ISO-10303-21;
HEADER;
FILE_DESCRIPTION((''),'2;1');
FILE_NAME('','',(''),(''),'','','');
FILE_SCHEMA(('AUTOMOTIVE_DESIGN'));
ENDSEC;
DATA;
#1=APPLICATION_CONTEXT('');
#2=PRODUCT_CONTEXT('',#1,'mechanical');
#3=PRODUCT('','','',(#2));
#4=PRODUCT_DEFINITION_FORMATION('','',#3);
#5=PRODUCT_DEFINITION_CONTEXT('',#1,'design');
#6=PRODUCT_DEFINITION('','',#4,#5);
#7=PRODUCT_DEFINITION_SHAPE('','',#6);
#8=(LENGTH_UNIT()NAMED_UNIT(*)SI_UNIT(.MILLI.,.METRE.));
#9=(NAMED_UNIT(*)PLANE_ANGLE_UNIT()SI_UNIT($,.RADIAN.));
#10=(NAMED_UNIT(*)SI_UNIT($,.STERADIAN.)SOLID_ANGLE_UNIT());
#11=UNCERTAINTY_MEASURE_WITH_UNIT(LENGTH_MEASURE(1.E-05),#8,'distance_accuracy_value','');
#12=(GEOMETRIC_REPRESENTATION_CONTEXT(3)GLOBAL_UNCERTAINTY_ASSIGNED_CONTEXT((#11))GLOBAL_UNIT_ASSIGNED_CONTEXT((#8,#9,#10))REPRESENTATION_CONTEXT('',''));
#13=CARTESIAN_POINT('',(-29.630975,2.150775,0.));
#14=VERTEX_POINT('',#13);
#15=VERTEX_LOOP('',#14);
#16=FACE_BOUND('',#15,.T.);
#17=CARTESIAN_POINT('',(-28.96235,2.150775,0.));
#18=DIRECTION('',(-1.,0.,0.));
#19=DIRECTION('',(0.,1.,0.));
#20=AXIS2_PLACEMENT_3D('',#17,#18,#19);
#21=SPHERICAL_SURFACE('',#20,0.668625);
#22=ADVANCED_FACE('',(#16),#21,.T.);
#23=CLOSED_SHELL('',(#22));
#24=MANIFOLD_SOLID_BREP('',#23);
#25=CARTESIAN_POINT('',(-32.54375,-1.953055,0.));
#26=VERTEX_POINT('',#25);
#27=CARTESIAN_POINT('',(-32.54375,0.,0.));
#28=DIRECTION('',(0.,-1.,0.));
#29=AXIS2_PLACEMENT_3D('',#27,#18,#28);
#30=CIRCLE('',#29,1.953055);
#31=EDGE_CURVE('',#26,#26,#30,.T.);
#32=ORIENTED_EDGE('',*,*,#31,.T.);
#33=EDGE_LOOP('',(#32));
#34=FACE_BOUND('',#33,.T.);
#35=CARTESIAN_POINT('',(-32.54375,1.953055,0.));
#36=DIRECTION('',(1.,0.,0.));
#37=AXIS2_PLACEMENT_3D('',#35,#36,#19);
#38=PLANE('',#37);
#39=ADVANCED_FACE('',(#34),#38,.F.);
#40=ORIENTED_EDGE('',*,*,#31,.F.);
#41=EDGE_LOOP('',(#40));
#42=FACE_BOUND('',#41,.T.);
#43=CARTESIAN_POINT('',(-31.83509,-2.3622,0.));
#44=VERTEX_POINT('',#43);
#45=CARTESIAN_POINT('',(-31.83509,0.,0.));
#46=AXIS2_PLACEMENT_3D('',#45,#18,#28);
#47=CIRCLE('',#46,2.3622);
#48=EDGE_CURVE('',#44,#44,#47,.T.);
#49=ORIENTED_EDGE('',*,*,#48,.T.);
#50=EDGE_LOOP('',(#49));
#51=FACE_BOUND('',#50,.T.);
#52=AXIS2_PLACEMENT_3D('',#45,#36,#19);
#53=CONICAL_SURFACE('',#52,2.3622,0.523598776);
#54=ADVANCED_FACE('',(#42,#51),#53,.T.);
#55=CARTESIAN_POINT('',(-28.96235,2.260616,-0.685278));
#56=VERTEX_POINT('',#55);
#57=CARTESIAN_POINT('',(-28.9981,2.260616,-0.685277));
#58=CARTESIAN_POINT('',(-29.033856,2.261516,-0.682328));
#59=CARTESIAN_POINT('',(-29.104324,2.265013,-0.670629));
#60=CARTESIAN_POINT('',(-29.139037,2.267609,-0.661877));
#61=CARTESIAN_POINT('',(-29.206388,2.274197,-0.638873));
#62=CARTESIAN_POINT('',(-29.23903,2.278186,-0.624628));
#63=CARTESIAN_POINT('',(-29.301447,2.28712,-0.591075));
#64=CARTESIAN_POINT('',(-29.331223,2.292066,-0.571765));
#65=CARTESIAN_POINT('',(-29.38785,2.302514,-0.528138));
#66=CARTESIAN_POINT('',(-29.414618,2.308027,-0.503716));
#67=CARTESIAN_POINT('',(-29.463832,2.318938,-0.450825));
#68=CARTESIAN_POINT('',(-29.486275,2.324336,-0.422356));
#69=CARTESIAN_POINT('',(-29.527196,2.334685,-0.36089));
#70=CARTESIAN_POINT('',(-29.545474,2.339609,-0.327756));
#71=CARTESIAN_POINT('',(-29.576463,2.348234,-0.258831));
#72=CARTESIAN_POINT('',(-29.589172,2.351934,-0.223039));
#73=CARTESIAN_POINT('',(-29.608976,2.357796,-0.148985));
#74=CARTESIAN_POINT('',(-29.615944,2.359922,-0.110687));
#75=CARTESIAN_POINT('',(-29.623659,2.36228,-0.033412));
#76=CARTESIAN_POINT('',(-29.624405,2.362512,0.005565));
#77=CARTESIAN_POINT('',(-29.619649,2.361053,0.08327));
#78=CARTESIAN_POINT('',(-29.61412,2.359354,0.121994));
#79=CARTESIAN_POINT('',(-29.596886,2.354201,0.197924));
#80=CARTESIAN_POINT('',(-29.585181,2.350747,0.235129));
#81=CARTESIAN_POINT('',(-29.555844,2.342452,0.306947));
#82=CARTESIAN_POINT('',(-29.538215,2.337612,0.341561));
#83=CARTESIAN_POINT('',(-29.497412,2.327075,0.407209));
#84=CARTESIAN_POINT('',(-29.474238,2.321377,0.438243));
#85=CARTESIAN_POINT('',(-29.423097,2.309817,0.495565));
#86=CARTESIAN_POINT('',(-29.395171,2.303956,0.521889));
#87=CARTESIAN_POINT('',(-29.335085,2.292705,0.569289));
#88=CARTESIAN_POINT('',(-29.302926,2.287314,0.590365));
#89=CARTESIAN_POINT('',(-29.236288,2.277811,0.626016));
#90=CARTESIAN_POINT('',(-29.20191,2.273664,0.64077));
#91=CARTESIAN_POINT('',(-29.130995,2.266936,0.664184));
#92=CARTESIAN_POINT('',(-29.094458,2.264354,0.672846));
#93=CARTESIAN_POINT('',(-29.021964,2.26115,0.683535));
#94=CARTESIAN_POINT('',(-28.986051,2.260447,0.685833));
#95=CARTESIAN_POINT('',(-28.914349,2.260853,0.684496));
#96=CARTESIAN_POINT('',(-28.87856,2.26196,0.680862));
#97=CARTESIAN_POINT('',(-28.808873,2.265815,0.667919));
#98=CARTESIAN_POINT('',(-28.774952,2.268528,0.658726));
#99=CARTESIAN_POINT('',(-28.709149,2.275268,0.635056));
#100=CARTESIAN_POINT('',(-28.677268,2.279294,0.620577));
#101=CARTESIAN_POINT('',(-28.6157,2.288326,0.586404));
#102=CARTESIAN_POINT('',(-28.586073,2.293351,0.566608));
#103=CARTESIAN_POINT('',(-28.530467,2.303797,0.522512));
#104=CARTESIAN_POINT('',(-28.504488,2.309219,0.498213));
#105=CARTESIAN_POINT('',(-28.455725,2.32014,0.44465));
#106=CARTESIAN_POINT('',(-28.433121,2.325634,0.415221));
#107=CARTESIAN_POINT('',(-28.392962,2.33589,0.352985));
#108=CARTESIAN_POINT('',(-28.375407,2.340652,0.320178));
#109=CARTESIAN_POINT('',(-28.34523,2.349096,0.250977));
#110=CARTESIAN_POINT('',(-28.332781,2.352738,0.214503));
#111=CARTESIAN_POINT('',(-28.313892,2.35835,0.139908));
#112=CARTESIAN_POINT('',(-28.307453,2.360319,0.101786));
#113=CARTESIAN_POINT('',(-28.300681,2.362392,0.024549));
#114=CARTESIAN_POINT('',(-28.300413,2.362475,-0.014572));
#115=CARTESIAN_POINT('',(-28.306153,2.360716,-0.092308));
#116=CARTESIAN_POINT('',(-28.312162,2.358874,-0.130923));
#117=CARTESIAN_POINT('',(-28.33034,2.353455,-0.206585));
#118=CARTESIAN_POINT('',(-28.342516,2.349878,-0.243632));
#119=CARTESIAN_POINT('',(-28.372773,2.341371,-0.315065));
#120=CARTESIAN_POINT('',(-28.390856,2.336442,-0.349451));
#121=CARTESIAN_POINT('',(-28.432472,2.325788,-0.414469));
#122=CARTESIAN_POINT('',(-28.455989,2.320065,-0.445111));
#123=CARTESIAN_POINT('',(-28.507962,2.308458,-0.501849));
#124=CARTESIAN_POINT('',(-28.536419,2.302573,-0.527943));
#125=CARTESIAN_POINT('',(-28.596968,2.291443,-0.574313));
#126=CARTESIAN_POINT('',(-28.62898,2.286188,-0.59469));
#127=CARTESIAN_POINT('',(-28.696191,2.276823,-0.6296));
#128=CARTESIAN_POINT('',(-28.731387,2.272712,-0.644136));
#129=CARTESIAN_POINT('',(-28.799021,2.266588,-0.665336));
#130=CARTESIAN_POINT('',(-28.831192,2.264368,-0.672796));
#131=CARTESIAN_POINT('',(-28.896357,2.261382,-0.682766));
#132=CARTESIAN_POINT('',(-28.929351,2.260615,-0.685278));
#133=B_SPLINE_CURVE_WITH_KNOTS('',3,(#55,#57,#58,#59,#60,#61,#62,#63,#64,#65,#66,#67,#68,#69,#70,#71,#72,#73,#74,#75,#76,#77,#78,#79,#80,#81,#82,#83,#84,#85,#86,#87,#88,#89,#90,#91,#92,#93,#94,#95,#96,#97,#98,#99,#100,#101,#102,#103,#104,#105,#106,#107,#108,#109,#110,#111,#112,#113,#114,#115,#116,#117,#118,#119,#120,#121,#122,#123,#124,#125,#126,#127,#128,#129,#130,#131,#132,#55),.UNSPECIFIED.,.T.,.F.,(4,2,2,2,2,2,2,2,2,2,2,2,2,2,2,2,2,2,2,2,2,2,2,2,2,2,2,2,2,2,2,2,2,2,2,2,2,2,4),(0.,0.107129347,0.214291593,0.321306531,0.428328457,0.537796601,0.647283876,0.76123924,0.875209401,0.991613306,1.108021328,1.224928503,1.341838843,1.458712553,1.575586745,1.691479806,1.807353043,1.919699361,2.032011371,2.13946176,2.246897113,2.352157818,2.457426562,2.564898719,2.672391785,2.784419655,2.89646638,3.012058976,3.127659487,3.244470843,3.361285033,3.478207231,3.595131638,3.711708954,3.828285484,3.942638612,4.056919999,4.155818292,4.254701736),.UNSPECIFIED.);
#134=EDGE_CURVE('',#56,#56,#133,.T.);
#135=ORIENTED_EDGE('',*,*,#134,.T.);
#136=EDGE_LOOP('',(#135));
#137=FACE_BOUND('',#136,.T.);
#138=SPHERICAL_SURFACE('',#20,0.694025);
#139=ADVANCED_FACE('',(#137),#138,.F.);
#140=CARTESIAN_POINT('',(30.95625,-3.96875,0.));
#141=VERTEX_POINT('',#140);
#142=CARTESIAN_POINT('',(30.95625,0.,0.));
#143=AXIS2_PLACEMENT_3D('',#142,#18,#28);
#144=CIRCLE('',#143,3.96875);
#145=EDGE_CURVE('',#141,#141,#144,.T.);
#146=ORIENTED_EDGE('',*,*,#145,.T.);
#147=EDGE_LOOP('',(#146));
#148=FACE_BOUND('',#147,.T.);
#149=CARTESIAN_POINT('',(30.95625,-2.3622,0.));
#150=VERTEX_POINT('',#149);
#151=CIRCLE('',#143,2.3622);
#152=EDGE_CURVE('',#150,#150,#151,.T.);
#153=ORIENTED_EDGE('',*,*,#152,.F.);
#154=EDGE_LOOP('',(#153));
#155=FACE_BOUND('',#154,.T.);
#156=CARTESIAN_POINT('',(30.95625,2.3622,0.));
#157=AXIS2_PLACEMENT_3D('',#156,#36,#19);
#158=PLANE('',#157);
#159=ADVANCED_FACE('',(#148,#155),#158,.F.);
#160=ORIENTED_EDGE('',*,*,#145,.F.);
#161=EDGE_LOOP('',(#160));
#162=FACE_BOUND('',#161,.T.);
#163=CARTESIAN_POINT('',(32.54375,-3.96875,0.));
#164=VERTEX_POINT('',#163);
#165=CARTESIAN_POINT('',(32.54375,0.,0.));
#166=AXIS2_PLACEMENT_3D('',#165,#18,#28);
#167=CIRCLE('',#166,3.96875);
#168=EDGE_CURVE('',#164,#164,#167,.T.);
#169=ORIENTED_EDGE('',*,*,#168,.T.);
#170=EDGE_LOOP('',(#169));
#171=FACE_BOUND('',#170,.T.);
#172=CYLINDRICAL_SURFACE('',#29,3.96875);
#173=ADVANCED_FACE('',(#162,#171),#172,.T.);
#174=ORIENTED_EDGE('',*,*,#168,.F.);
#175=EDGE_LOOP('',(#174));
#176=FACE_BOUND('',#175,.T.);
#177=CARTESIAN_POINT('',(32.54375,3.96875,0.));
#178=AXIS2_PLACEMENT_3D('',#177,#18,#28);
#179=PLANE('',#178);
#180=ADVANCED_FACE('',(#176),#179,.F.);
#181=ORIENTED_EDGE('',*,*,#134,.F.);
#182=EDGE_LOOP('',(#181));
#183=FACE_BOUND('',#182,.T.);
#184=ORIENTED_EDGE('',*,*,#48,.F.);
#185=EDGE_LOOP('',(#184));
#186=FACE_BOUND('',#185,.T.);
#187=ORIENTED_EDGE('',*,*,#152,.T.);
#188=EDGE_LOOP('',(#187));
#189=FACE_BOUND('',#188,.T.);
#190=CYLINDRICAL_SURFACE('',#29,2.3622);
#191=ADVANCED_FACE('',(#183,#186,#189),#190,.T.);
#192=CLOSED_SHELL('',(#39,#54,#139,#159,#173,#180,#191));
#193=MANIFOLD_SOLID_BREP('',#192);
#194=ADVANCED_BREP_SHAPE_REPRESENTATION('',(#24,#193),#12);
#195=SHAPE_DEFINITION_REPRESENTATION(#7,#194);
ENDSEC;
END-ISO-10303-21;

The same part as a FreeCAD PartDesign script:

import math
import FreeCAD as App
import Part
import Sketcher
Q = App.Units.Quantity


def add_polygon(sketch, points):
    """Adds a closed chain of lines whose ends are joined by coincident constraints."""
    first, n = sketch.GeometryCount, len(points)
    for a, b in zip(points, points[1:] + points[:1]):
        sketch.addGeometry(Part.LineSegment(App.Vector(*a, 0), App.Vector(*b, 0)), False)
    for i in range(n):
        sketch.addConstraint(Sketcher.Constraint("Coincident", first + i, 2, first + (i + 1) % n, 1))

doc = App.newDocument("Part")
body = doc.addObject("PartDesign::Body", "Body")

# Sketch on XY plane
sketch1 = doc.addObject("Sketcher::SketchObject", "Sketch")
body.addObject(sketch1)
sketch1.AttachmentSupport = (doc.XY_Plane, [""])
sketch1.MapMode = "FlatFace"
add_polygon(sketch1, [(32.5, 4), (31, 4), (31, 2.4), (-31.8, 2.4), (-32.5, 2), (-32.5, 0), (32.5, 0)])  # lines 0-6
sketch1.addConstraint([
    Sketcher.Constraint("Horizontal", 0),
    Sketcher.Constraint("Vertical", 1),
    Sketcher.Constraint("Horizontal", 2),
    Sketcher.Constraint("Vertical", 4),
    Sketcher.Constraint("Horizontal", 5),
    Sketcher.Constraint("Vertical", 6),
    Sketcher.Constraint("Symmetric", 4, 2, 5, 2, -1, 1),
    Sketcher.Constraint("Angle", 3, Q("-150 deg")),
    Sketcher.Constraint("DistanceX", 3, 2, 1, 2, Q("2.5 in")),
    Sketcher.Constraint("DistanceX", 0, 2, 0, 1, Q("0.0625 in")),
    Sketcher.Constraint("DistanceY", 6, 1, 6, 2, Q("0.15625 in")),
    Sketcher.Constraint("DistanceX", 2, 2, 2, 1, Q("2.4721 in")),
    Sketcher.Constraint("DistanceY", -1, 1, 1, 2, Q("0.093 in")),
])
revolution = doc.addObject("PartDesign::Revolution", "Revolution")
body.addObject(revolution)
revolution.Profile = sketch1
revolution.ReferenceAxis = (sketch1, ["H_Axis"])
revolution.Angle = 360

# Sketch on XY plane
sketch2 = doc.addObject("Sketcher::SketchObject", "Sketch001")
body.addObject(sketch2)
sketch2.AttachmentSupport = (doc.XY_Plane, [""])
sketch2.MapMode = "FlatFace"
sketch2.addGeometry([
    Part.LineSegment(App.Vector(-29.7, 2.2, 0), App.Vector(-28.3, 2.2, 0)),
    Part.ArcOfCircle(Part.Circle(App.Vector(-29, 2.2, 0), App.Vector(0, 0, 1), 0.7), math.radians(0), math.radians(180)),
], False)
sketch2.addGeometry(Part.LineSegment(App.Vector(-29.7, 2.2, 0), App.Vector(-28.3, 2.2, 0)), True)  # axis
sketch2.addConstraint([
    Sketcher.Constraint("Coincident", 0, 1, 1, 2),
    Sketcher.Constraint("Coincident", 1, 1, 0, 2),
    Sketcher.Constraint("Horizontal", 0),
    Sketcher.Constraint("Horizontal", 2),
    Sketcher.Constraint("Coincident", 2, 1, 0, 1),
    Sketcher.Constraint("Horizontal", 1, 3, 0, 1),
    Sketcher.Constraint("Equal", 0, 2),
    Sketcher.Constraint("Radius", 1, 0.694025),
    Sketcher.Constraint("DistanceX", 1, 3, -1, 1, 28.96235),
    Sketcher.Constraint("DistanceY", -1, 1, 1, 3, 2.150775),
])
groove = doc.addObject("PartDesign::Groove", "Groove")
body.addObject(groove)
groove.Profile = sketch2
groove.ReferenceAxis = (sketch2, ["Axis0"])
groove.Angle = 360
body2 = doc.addObject("PartDesign::Body", "Body001")

# Sketch on XY plane
sketch3 = doc.addObject("Sketcher::SketchObject", "Sketch002")
body2.addObject(sketch3)
sketch3.AttachmentSupport = (doc.getObject("XY_Plane001"), [""])
sketch3.MapMode = "FlatFace"
sketch3.addGeometry([
    Part.LineSegment(App.Vector(-29.6, 2.2, 0), App.Vector(-28.3, 2.2, 0)),
    Part.ArcOfCircle(Part.Circle(App.Vector(-29, 2.2, 0), App.Vector(0, 0, 1), 0.7), math.radians(0), math.radians(180)),
], False)
sketch3.addGeometry(Part.LineSegment(App.Vector(-29.6, 2.2, 0), App.Vector(-28.3, 2.2, 0)), True)  # axis
sketch3.addConstraint([
    Sketcher.Constraint("Coincident", 0, 1, 1, 2),
    Sketcher.Constraint("Coincident", 1, 1, 0, 2),
    Sketcher.Constraint("Horizontal", 0),
    Sketcher.Constraint("Horizontal", 2),
    Sketcher.Constraint("Coincident", 2, 1, 0, 1),
    Sketcher.Constraint("Horizontal", 1, 3, 0, 1),
    Sketcher.Constraint("Equal", 0, 2),
    Sketcher.Constraint("Radius", 1, 0.668625),
    Sketcher.Constraint("DistanceX", 1, 3, -1, 1, 28.96235),
    Sketcher.Constraint("DistanceY", -1, 1, 1, 3, 2.150775),
])
revolution2 = doc.addObject("PartDesign::Revolution", "Revolution001")
body2.addObject(revolution2)
revolution2.Profile = sketch3
revolution2.ReferenceAxis = (sketch3, ["Axis0"])
revolution2.Angle = 360

doc.recompute()
